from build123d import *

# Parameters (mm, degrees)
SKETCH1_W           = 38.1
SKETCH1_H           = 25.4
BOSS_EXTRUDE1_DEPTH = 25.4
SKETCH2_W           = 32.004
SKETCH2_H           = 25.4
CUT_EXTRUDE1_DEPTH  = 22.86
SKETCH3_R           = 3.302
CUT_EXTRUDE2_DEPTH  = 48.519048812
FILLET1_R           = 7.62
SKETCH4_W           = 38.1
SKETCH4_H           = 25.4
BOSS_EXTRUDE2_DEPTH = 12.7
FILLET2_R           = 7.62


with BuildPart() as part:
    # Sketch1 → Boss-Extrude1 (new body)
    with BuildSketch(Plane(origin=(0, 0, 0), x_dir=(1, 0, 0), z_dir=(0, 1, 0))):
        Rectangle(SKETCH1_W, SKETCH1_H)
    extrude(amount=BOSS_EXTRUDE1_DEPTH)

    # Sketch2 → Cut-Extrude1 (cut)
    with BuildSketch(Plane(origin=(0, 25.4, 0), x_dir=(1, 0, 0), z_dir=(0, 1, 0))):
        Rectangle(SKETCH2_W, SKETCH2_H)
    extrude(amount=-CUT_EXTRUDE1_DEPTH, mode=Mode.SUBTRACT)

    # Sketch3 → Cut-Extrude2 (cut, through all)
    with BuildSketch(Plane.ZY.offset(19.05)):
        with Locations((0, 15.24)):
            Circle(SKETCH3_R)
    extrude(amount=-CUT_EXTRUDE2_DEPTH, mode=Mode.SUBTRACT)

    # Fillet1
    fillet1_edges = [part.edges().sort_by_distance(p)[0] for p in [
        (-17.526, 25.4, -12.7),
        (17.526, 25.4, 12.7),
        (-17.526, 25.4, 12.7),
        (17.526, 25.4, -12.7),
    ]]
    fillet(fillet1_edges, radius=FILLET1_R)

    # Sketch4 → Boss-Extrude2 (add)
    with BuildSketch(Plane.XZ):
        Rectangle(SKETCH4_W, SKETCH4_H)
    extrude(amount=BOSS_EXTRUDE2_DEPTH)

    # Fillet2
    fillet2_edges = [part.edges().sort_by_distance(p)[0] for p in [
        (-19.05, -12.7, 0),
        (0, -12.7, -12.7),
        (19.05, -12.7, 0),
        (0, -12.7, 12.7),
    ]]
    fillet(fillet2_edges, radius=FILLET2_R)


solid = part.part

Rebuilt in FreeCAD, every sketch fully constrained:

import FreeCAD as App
import Part
import Sketcher
from FreeCAD import Vector
Q = App.Units.Quantity


def edges_at(feature, points):
    """Names of the edges that pass closest to the given points."""
    edges = feature.Shape.Edges
    near = lambda p: min(range(len(edges)), key=lambda i: edges[i].distToShape(Part.Vertex(*p))[0])
    return sorted({f"Edge{near(p) + 1}" for p in points})


def add_polygon(sketch, points):
    """Adds a closed chain of lines whose ends are joined by coincident constraints."""
    first, n = sketch.GeometryCount, len(points)
    for a, b in zip(points, points[1:] + points[:1]):
        sketch.addGeometry(Part.LineSegment(App.Vector(*a, 0), App.Vector(*b, 0)), False)
    for i in range(n):
        sketch.addConstraint(Sketcher.Constraint("Coincident", first + i, 2, first + (i + 1) % n, 1))

doc = App.newDocument("Part")
body = doc.addObject("PartDesign::Body", "Body")

sketch1 = body.newObject("Sketcher::SketchObject", "Sketch")
sketch1.AttachmentSupport = (doc.getObject("XZ_Plane"), [""])
sketch1.MapMode = "FlatFace"
add_polygon(sketch1, [(-19, -13), (-19, 13), (19, 13), (19, -13)])
sketch1.addConstraint(Sketcher.Constraint("Vertical", 0))
sketch1.addConstraint(Sketcher.Constraint("Horizontal", 1))
sketch1.addConstraint(Sketcher.Constraint("Vertical", 2))
sketch1.addConstraint(Sketcher.Constraint("Horizontal", 3))
sketch1.addConstraint(Sketcher.Constraint("Symmetric", 0, 2, 2, 2, -1, 1))
sketch1.addConstraint(Sketcher.Constraint("DistanceY", 0, 1, 0, 2, Q("1 in")))
sketch1.addConstraint(Sketcher.Constraint("DistanceX", 1, 1, 1, 2, Q("1.5 in")))
pad1 = body.newObject("PartDesign::Pad", "Pad")
pad1.Profile = sketch1
pad1.Length = Q("1 in")
pad1.Reversed = True

sketch2 = body.newObject("Sketcher::SketchObject", "Sketch001")
sketch2.AttachmentSupport = (doc.getObject("XZ_Plane"), [""])
sketch2.MapMode = "FlatFace"
sketch2.AttachmentOffset = App.Placement(Vector(0, 0, -1 * 25.4), App.Rotation())
add_polygon(sketch2, [(-16, -13), (-16, 13), (16, 13), (16, -13)])
sketch2.addConstraint(Sketcher.Constraint("Vertical", 0))
sketch2.addConstraint(Sketcher.Constraint("Horizontal", 1))
sketch2.addConstraint(Sketcher.Constraint("Vertical", 2))
sketch2.addConstraint(Sketcher.Constraint("Horizontal", 3))
sketch2.addConstraint(Sketcher.Constraint("Symmetric", 0, 2, 2, 2, -1, 1))
sketch2.addConstraint(Sketcher.Constraint("DistanceY", 0, 1, 0, 2, Q("1 in")))
sketch2.addConstraint(Sketcher.Constraint("DistanceX", 1, 1, 1, 2, Q("1.26 in")))
pocket1 = body.newObject("PartDesign::Pocket", "Pocket")
pocket1.Profile = sketch2
pocket1.Length = Q("0.9 in")
pocket1.Reversed = True

sketch3 = body.newObject("Sketcher::SketchObject", "Sketch002")
sketch3.AttachmentSupport = (doc.getObject("YZ_Plane"), [""])
sketch3.MapMode = "FlatFace"
sketch3.AttachmentOffset = App.Placement(Vector(0, 0, -0.75 * 25.4), App.Rotation())
sketch3.addGeometry(Part.Circle(Vector(15.2, 0, 0), Vector(0, 0, 1), 3.3), False)
sketch3.addConstraint(Sketcher.Constraint("PointOnObject", 0, 3, -1))
sketch3.addConstraint(Sketcher.Constraint("Diameter", 0, Q("0.26 in")))
sketch3.addConstraint(Sketcher.Constraint("DistanceX", -1, 1, 0, 3, Q("0.6 in")))
pocket2 = body.newObject("PartDesign::Pocket", "Pocket001")
pocket2.Profile = sketch3
pocket2.Type = "ThroughAll"
pocket2.Reversed = True
doc.recompute()

fillet = body.newObject("PartDesign::Fillet", "Fillet")
fillet.Base = (pocket2, edges_at(pocket2, [
    (-17.526, 25.4, -12.7),
    (17.526, 25.4, 12.7),
    (-17.526, 25.4, 12.7),
    (17.526, 25.4, -12.7),
]))
fillet.Radius = Q("0.3 in")

sketch4 = body.newObject("Sketcher::SketchObject", "Sketch003")
sketch4.AttachmentSupport = (doc.getObject("XZ_Plane"), [""])
sketch4.MapMode = "FlatFace"
add_polygon(sketch4, [(-19, 13), (-19, -13), (19, -13), (19, 13)])
sketch4.addConstraint(Sketcher.Constraint("Vertical", 0))
sketch4.addConstraint(Sketcher.Constraint("Horizontal", 1))
sketch4.addConstraint(Sketcher.Constraint("Vertical", 2))
sketch4.addConstraint(Sketcher.Constraint("Horizontal", 3))
sketch4.addConstraint(Sketcher.Constraint("Symmetric", 0, 2, 2, 2, -1, 1))
sketch4.addConstraint(Sketcher.Constraint("DistanceY", 0, 2, 0, 1, Q("1 in")))
sketch4.addConstraint(Sketcher.Constraint("DistanceX", 1, 1, 1, 2, Q("1.5 in")))
pad2 = body.newObject("PartDesign::Pad", "Pad001")
pad2.Profile = sketch4
pad2.Length = Q("0.5 in")
doc.recompute()

fillet2 = body.newObject("PartDesign::Fillet", "Fillet001")
fillet2.Base = (pad2, edges_at(pad2, [
    (-19.05, -12.7, 0),
    (0, -12.7, -12.7),
    (19.05, -12.7, 0),
    (0, -12.7, 12.7),
]))
fillet2.Radius = Q("0.3 in")

doc.recompute()
